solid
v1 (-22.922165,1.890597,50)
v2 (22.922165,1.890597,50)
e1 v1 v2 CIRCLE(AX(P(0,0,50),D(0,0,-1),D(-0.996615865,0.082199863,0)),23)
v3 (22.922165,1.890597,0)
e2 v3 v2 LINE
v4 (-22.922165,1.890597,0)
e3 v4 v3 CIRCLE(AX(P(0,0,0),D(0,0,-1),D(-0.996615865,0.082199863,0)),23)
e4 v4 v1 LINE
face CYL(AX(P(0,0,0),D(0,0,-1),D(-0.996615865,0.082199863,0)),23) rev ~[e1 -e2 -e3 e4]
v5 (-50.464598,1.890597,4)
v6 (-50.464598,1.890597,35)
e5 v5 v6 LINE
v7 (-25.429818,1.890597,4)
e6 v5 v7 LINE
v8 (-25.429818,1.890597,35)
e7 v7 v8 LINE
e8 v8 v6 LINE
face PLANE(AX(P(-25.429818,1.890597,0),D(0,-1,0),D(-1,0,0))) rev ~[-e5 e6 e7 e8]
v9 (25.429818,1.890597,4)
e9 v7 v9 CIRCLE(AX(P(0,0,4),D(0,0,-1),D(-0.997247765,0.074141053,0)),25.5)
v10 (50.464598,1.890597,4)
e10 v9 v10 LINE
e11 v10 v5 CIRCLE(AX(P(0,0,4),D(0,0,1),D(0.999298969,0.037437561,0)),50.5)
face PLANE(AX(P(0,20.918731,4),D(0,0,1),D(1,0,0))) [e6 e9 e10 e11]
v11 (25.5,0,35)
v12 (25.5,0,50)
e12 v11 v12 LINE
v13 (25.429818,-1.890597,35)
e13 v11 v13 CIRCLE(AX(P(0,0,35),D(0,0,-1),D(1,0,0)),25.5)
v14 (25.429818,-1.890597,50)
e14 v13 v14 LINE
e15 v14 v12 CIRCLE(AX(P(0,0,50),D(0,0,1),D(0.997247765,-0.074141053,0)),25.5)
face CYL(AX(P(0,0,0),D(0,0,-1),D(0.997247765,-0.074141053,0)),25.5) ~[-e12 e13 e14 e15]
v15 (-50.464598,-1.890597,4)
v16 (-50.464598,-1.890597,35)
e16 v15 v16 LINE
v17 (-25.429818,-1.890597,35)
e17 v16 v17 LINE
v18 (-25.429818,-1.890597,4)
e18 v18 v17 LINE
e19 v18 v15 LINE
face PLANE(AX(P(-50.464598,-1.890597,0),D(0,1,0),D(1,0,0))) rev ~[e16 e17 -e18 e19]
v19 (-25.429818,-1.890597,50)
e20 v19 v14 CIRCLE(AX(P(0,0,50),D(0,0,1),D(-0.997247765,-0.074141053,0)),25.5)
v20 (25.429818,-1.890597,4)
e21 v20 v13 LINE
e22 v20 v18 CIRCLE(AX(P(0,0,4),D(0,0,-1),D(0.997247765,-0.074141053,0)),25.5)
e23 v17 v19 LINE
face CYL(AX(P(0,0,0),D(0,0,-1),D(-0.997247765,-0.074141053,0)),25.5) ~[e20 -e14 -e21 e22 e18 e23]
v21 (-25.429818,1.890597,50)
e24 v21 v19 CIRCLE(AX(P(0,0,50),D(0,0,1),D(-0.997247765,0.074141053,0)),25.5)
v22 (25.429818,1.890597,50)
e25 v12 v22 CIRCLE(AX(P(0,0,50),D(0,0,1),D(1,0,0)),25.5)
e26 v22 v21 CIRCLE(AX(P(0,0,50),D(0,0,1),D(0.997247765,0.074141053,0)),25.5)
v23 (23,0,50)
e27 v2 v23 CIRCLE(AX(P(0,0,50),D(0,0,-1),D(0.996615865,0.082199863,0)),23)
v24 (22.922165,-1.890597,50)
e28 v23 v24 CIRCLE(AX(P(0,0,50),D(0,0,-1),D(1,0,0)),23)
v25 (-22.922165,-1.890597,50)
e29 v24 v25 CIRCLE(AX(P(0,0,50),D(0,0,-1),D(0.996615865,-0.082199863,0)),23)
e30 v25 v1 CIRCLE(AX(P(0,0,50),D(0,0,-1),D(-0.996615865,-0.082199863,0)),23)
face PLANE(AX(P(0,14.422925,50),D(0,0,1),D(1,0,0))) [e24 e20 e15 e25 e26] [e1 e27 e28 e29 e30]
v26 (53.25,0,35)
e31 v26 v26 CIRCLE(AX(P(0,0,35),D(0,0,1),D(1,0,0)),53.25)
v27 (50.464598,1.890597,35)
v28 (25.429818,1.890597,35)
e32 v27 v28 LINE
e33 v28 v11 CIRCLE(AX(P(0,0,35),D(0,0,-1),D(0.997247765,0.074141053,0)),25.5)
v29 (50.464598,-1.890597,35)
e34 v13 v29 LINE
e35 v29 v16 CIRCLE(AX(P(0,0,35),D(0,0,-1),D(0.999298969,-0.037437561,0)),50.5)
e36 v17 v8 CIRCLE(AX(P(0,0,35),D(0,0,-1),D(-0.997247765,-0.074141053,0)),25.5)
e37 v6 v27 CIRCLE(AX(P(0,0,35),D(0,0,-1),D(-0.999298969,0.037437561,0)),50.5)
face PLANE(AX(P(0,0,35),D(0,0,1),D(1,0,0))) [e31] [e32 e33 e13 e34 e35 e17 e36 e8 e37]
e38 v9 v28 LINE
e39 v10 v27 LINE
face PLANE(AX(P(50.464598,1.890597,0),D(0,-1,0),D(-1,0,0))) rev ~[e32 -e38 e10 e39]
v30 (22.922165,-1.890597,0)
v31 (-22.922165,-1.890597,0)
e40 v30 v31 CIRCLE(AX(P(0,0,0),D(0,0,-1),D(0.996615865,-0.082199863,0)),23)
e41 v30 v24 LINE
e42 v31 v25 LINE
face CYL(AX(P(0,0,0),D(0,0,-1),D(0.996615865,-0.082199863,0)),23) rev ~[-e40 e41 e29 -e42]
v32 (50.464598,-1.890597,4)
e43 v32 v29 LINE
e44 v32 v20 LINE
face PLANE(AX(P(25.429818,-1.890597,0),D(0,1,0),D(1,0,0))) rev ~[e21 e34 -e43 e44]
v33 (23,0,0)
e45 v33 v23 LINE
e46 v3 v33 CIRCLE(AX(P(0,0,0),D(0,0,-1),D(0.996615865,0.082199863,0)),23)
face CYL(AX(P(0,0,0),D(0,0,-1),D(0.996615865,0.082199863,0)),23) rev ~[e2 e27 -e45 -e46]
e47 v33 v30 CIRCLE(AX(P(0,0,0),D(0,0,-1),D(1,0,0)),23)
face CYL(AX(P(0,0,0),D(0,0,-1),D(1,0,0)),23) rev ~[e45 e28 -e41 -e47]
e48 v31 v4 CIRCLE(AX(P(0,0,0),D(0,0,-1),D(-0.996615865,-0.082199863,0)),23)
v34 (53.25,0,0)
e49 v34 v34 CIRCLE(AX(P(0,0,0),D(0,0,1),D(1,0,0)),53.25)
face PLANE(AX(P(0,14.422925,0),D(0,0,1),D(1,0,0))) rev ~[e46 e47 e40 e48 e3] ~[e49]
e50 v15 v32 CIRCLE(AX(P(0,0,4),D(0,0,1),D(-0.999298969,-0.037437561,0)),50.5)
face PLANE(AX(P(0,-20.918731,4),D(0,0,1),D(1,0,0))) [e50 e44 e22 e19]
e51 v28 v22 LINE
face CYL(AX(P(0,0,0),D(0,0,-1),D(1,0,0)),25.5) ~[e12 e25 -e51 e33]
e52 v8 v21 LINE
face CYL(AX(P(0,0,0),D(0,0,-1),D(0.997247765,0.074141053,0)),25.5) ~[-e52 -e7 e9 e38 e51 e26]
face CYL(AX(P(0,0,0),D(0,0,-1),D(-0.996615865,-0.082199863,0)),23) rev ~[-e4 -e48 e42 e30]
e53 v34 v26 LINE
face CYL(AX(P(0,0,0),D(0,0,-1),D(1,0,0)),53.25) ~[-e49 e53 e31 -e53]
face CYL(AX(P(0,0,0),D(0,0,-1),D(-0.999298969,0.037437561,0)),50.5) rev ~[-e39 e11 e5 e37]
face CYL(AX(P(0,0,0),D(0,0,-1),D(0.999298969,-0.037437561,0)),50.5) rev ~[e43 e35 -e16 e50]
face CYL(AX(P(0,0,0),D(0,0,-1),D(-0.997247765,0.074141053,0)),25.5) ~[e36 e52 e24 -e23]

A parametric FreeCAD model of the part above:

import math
import FreeCAD as App
import Part
import Sketcher

V = App.Vector

doc = App.newDocument("Part")
body = doc.addObject("PartDesign::Body", "Body")

sketch1 = body.newObject("Sketcher::SketchObject", "Sketch")
sketch1.AttachmentSupport = (doc.getObject("XY_Plane"), [""])
sketch1.MapMode = "FlatFace"
sketch1.addGeometry([
    Part.Circle(V(0, 0, 0), V(0, 0, 1), 53.2),
    Part.ArcOfCircle(Part.Circle(V(0, 0, 0), V(0, 0, 1), 50.5), math.radians(-178), math.radians(-2)),
    Part.LineSegment(V(-50.5, -1.9, 0), V(-25.4, -1.9, 0)),
    Part.ArcOfCircle(Part.Circle(V(0, 0, 0), V(0, 0, 1), 25.5), math.radians(175.75), math.radians(184.25)),
    Part.LineSegment(V(-25.4, 1.9, 0), V(-50.5, 1.9, 0)),
    Part.ArcOfCircle(Part.Circle(V(0, 0, 0), V(0, 0, 1), 50.5), math.radians(2), math.radians(178)),
    Part.LineSegment(V(50.5, 1.9, 0), V(25.4, 1.9, 0)),
    Part.ArcOfCircle(Part.Circle(V(0, 0, 0), V(0, 0, 1), 25.5), math.radians(0), math.radians(4.25)),
    Part.ArcOfCircle(Part.Circle(V(0, 0, 0), V(0, 0, 1), 25.5), math.radians(-4.25), math.radians(0)),
    Part.LineSegment(V(25.4, -1.9, 0), V(50.5, -1.9, 0)),
], False)
sketch1.addConstraint([
    Sketcher.Constraint("Coincident", 1, 1, 2, 1),
    Sketcher.Constraint("Coincident", 2, 2, 3, 2),
    Sketcher.Constraint("Coincident", 3, 1, 4, 1),
    Sketcher.Constraint("Coincident", 4, 2, 5, 2),
    Sketcher.Constraint("Coincident", 5, 1, 6, 1),
    Sketcher.Constraint("Coincident", 6, 2, 7, 2),
    Sketcher.Constraint("Tangent", 7, 1, 8, 2),
    Sketcher.Constraint("Coincident", 8, 1, 9, 1),
    Sketcher.Constraint("Coincident", 9, 2, 1, 2),
    Sketcher.Constraint("Horizontal", 2),
    Sketcher.Constraint("Horizontal", 4),
    Sketcher.Constraint("Horizontal", 6),
    Sketcher.Constraint("Horizontal", 9),
    Sketcher.Constraint("Coincident", 0, 3, -1, 1),
    Sketcher.Constraint("Coincident", 1, 3, -1, 1),
    Sketcher.Constraint("Coincident", 3, 3, -1, 1),
    Sketcher.Constraint("Coincident", 5, 3, -1, 1),
    Sketcher.Constraint("Coincident", 7, 3, -1, 1),
    Sketcher.Constraint("Equal", 1, 5),
    Sketcher.Constraint("Equal", 3, 7),
    Sketcher.Constraint("Equal", 7, 8),
    Sketcher.Constraint("PointOnObject", 7, 1, -1),
    Sketcher.Constraint("Horizontal", 4, 2, 5, 1),
    Sketcher.Constraint("Horizontal", 2, 2, 8, 1),
    Sketcher.Constraint("Vertical", 2, 2, 3, 1),
    Sketcher.Constraint("Diameter", 0, 106.5),
    Sketcher.Constraint("Radius", 1, 50.5),
    Sketcher.Constraint("Radius", 3, 25.5),
    Sketcher.Constraint("DistanceX", 2, 1, 2, 2, 25.03478),
])
pad1 = body.newObject("PartDesign::Pad", "Pad")
pad1.Profile = sketch1
pad1.Length = 35

sketch2 = body.newObject("Sketcher::SketchObject", "Sketch001")
sketch2.AttachmentSupport = (doc.getObject("XY_Plane"), [""])
sketch2.MapMode = "FlatFace"
sketch2.addGeometry([
    Part.ArcOfCircle(Part.Circle(V(0, 0, 0), V(0, 0, 1), 26), math.radians(4), math.radians(176)),
    Part.LineSegment(V(25, 2, 0), V(50, 2, 0)),
    Part.ArcOfCircle(Part.Circle(V(0, 0, 0), V(0, 0, 1), 50), math.radians(2), math.radians(178)),
    Part.LineSegment(V(-50, 2, 0), V(-25, 2, 0)),
    Part.LineSegment(V(50, -2, 0), V(25, -2, 0)),
    Part.ArcOfCircle(Part.Circle(V(0, 0, 0), V(0, 0, 1), 26), math.radians(-176), math.radians(-4)),
    Part.LineSegment(V(-25, -2, 0), V(-50, -2, 0)),
    Part.ArcOfCircle(Part.Circle(V(0, 0, 0), V(0, 0, 1), 50), math.radians(-178), math.radians(-2)),
], False)
sketch2.addConstraint([
    Sketcher.Constraint("Coincident", 0, 1, 1, 1),
    Sketcher.Constraint("Coincident", 1, 2, 2, 1),
    Sketcher.Constraint("Coincident", 2, 2, 3, 1),
    Sketcher.Constraint("Coincident", 3, 2, 0, 2),
    Sketcher.Constraint("Coincident", 4, 2, 5, 2),
    Sketcher.Constraint("Coincident", 5, 1, 6, 1),
    Sketcher.Constraint("Coincident", 6, 2, 7, 1),
    Sketcher.Constraint("Coincident", 7, 2, 4, 1),
    Sketcher.Constraint("Horizontal", 1),
    Sketcher.Constraint("Horizontal", 3),
    Sketcher.Constraint("Horizontal", 4),
    Sketcher.Constraint("Horizontal", 6),
    Sketcher.Constraint("Coincident", 0, 3, -1, 1),
    Sketcher.Constraint("Coincident", 2, 3, -1, 1),
    Sketcher.Constraint("Coincident", 5, 3, -1, 1),
    Sketcher.Constraint("Coincident", 7, 3, -1, 1),
    Sketcher.Constraint("Equal", 0, 5),
    Sketcher.Constraint("Equal", 2, 7),
    Sketcher.Constraint("Horizontal", 1, 2, 2, 2),
    Sketcher.Constraint("Horizontal", 4, 2, 5, 1),
    Sketcher.Constraint("Vertical", 0, 1, 4, 2),
    Sketcher.Constraint("Radius", 0, 25.5),
    Sketcher.Constraint("Radius", 2, 50.5),
    Sketcher.Constraint("DistanceX", 1, 1, 1, 2, 25.03478),
])
pad2 = body.newObject("PartDesign::Pad", "Pad001")
pad2.Profile = sketch2
pad2.Length = 4

sketch3 = body.newObject("Sketcher::SketchObject", "Sketch002")
sketch3.AttachmentSupport = (doc.getObject("XY_Plane"), [""])
sketch3.MapMode = "FlatFace"
sketch3.addGeometry([
    Part.ArcOfCircle(Part.Circle(V(0, 0, 0), V(0, 0, 1), 25.5), math.radians(4), math.radians(176)),
    Part.ArcOfCircle(Part.Circle(V(0, 0, 0), V(0, 0, 1), 25.5), math.radians(175.75), math.radians(184.25)),
    Part.ArcOfCircle(Part.Circle(V(0, 0, 0), V(0, 0, 1), 25.5), math.radians(-176), math.radians(-4)),
    Part.ArcOfCircle(Part.Circle(V(0, 0, 0), V(0, 0, 1), 25.5), math.radians(-4.25), math.radians(0)),
    Part.ArcOfCircle(Part.Circle(V(0, 0, 0), V(0, 0, 1), 25.5), math.radians(0), math.radians(4.25)),
    Part.ArcOfCircle(Part.Circle(V(0, 0, 0), V(0, 0, 1), 23), math.radians(5), math.radians(175)),
    Part.ArcOfCircle(Part.Circle(V(0, 0, 0), V(0, 0, 1), 23), math.radians(0), math.radians(4.72)),
    Part.ArcOfCircle(Part.Circle(V(0, 0, 0), V(0, 0, 1), 23), math.radians(-4.72), math.radians(0)),
    Part.ArcOfCircle(Part.Circle(V(0, 0, 0), V(0, 0, 1), 23), math.radians(-175), math.radians(-5)),
    Part.ArcOfCircle(Part.Circle(V(0, 0, 0), V(0, 0, 1), 23), math.radians(175.28), math.radians(184.72)),
], False)
sketch3.addConstraint([
    Sketcher.Constraint("Tangent", 0, 2, 1, 1),
    Sketcher.Constraint("Tangent", 1, 2, 2, 1),
    Sketcher.Constraint("Tangent", 2, 2, 3, 1),
    Sketcher.Constraint("Tangent", 3, 2, 4, 1),
    Sketcher.Constraint("Tangent", 4, 2, 0, 1),
    Sketcher.Constraint("Tangent", 5, 1, 6, 2),
    Sketcher.Constraint("Tangent", 6, 1, 7, 2),
    Sketcher.Constraint("Tangent", 7, 1, 8, 2),
    Sketcher.Constraint("Tangent", 8, 1, 9, 2),
    Sketcher.Constraint("Tangent", 9, 1, 5, 2),
    Sketcher.Constraint("Coincident", 0, 3, -1, 1),
    Sketcher.Constraint("Coincident", 3, 3, -1, 1),
    Sketcher.Constraint("Coincident", 5, 3, -1, 1),
    Sketcher.Constraint("Coincident", 7, 3, -1, 1),
    Sketcher.Constraint("PointOnObject", 3, 2, -1),
    Sketcher.Constraint("PointOnObject", 6, 1, -1),
    Sketcher.Constraint("Horizontal", 1, 2, 2, 2),
    Sketcher.Constraint("Horizontal", 0, 2, 4, 2),
    Sketcher.Constraint("Horizontal", 4, 2, 5, 1),
    Sketcher.Constraint("Horizontal", 2, 2, 7, 1),
    Sketcher.Constraint("Horizontal", 7, 1, 8, 1),
    Sketcher.Constraint("Horizontal", 5, 1, 9, 1),
    Sketcher.Constraint("Vertical", 0, 2, 1, 2),
    Sketcher.Constraint("Radius", 5, 23.0),
    Sketcher.Constraint("Radius", 0, 25.5),
    Sketcher.Constraint("DistanceX", 0, 2, -1, 1, 25.429818),
])
pad3 = body.newObject("PartDesign::Pad", "Pad002")
pad3.Profile = sketch3
pad3.Length = 50

doc.recompute()
